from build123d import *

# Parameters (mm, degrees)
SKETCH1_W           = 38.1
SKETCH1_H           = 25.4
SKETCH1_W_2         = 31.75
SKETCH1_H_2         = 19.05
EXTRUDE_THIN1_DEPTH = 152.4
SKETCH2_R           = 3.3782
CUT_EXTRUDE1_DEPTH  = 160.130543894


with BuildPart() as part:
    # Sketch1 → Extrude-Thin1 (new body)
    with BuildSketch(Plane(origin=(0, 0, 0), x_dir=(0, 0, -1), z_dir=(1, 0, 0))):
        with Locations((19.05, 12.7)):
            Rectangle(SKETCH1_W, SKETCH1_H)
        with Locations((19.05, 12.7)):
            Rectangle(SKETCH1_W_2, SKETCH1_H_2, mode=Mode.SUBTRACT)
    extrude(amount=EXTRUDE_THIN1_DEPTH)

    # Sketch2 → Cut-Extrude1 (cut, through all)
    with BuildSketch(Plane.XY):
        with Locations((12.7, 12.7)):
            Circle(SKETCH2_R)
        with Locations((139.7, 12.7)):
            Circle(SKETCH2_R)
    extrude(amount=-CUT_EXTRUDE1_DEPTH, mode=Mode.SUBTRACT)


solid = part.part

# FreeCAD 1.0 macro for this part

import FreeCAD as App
import Part
import Sketcher
from FreeCAD import Vector
Q = App.Units.Quantity


def add_polygon(sketch, points):
    """Adds a closed chain of lines whose ends are joined by coincident constraints."""
    first, n = sketch.GeometryCount, len(points)
    for a, b in zip(points, points[1:] + points[:1]):
        sketch.addGeometry(Part.LineSegment(App.Vector(*a, 0), App.Vector(*b, 0)), False)
    for i in range(n):
        sketch.addConstraint(Sketcher.Constraint("Coincident", first + i, 2, first + (i + 1) % n, 1))

doc = App.newDocument("Part")
body = doc.addObject("PartDesign::Body", "Body")

sketch1 = body.newObject("Sketcher::SketchObject", "Sketch")
sketch1.AttachmentSupport = (doc.getObject("YZ_Plane"), [""])
sketch1.MapMode = "FlatFace"
add_polygon(sketch1, [(25, 0), (0, 0), (0, -38), (25, -38)])
add_polygon(sketch1, [(3, -35), (3, -3), (22, -3), (22, -35)])
sketch1.addConstraint([
    Sketcher.Constraint("Horizontal", 0),
    Sketcher.Constraint("Vertical", 1),
    Sketcher.Constraint("Horizontal", 2),
    Sketcher.Constraint("Vertical", 3),
    Sketcher.Constraint("Vertical", 4),
    Sketcher.Constraint("Horizontal", 5),
    Sketcher.Constraint("Vertical", 6),
    Sketcher.Constraint("Horizontal", 7),
    Sketcher.Constraint("Coincident", 0, 2, -1, 1),
    Sketcher.Constraint("DistanceX", 0, 2, 0, 1, Q("1 in")),
    Sketcher.Constraint("DistanceY", 1, 2, 1, 1, Q("1.5 in")),
    Sketcher.Constraint("DistanceX", 5, 1, 5, 2, Q("0.75 in")),
    Sketcher.Constraint("DistanceY", 4, 1, 4, 2, Q("1.25 in")),
    Sketcher.Constraint("DistanceX", -1, 1, 4, 2, Q("0.125 in")),
    Sketcher.Constraint("DistanceY", 4, 2, -1, 1, Q("0.125 in")),
])
pad1 = body.newObject("PartDesign::Pad", "Pad")
pad1.Profile = sketch1
pad1.Length = Q("6 in")

sketch2 = body.newObject("Sketcher::SketchObject", "Sketch001")
sketch2.AttachmentSupport = (doc.getObject("XY_Plane"), [""])
sketch2.MapMode = "FlatFace"
sketch2.addGeometry([
    Part.Circle(Vector(12.7, 12.7, 0), Vector(0, 0, 1), 3.4),
    Part.Circle(Vector(139.7, 12.7, 0), Vector(0, 0, 1), 3.4),
], False)
sketch2.addConstraint([
    Sketcher.Constraint("Equal", 0, 1),
    Sketcher.Constraint("Horizontal", 0, 3, 1, 3),
    Sketcher.Constraint("Diameter", 0, Q("0.266 in")),
    Sketcher.Constraint("DistanceX", 0, 3, 1, 3, Q("5 in")),
    Sketcher.Constraint("DistanceX", -1, 1, 0, 3, Q("0.5 in")),
    Sketcher.Constraint("DistanceY", -1, 1, 0, 3, Q("0.5 in")),
])
pocket1 = body.newObject("PartDesign::Pocket", "Pocket")
pocket1.Profile = sketch2
pocket1.Type = "ThroughAll"

doc.recompute()
